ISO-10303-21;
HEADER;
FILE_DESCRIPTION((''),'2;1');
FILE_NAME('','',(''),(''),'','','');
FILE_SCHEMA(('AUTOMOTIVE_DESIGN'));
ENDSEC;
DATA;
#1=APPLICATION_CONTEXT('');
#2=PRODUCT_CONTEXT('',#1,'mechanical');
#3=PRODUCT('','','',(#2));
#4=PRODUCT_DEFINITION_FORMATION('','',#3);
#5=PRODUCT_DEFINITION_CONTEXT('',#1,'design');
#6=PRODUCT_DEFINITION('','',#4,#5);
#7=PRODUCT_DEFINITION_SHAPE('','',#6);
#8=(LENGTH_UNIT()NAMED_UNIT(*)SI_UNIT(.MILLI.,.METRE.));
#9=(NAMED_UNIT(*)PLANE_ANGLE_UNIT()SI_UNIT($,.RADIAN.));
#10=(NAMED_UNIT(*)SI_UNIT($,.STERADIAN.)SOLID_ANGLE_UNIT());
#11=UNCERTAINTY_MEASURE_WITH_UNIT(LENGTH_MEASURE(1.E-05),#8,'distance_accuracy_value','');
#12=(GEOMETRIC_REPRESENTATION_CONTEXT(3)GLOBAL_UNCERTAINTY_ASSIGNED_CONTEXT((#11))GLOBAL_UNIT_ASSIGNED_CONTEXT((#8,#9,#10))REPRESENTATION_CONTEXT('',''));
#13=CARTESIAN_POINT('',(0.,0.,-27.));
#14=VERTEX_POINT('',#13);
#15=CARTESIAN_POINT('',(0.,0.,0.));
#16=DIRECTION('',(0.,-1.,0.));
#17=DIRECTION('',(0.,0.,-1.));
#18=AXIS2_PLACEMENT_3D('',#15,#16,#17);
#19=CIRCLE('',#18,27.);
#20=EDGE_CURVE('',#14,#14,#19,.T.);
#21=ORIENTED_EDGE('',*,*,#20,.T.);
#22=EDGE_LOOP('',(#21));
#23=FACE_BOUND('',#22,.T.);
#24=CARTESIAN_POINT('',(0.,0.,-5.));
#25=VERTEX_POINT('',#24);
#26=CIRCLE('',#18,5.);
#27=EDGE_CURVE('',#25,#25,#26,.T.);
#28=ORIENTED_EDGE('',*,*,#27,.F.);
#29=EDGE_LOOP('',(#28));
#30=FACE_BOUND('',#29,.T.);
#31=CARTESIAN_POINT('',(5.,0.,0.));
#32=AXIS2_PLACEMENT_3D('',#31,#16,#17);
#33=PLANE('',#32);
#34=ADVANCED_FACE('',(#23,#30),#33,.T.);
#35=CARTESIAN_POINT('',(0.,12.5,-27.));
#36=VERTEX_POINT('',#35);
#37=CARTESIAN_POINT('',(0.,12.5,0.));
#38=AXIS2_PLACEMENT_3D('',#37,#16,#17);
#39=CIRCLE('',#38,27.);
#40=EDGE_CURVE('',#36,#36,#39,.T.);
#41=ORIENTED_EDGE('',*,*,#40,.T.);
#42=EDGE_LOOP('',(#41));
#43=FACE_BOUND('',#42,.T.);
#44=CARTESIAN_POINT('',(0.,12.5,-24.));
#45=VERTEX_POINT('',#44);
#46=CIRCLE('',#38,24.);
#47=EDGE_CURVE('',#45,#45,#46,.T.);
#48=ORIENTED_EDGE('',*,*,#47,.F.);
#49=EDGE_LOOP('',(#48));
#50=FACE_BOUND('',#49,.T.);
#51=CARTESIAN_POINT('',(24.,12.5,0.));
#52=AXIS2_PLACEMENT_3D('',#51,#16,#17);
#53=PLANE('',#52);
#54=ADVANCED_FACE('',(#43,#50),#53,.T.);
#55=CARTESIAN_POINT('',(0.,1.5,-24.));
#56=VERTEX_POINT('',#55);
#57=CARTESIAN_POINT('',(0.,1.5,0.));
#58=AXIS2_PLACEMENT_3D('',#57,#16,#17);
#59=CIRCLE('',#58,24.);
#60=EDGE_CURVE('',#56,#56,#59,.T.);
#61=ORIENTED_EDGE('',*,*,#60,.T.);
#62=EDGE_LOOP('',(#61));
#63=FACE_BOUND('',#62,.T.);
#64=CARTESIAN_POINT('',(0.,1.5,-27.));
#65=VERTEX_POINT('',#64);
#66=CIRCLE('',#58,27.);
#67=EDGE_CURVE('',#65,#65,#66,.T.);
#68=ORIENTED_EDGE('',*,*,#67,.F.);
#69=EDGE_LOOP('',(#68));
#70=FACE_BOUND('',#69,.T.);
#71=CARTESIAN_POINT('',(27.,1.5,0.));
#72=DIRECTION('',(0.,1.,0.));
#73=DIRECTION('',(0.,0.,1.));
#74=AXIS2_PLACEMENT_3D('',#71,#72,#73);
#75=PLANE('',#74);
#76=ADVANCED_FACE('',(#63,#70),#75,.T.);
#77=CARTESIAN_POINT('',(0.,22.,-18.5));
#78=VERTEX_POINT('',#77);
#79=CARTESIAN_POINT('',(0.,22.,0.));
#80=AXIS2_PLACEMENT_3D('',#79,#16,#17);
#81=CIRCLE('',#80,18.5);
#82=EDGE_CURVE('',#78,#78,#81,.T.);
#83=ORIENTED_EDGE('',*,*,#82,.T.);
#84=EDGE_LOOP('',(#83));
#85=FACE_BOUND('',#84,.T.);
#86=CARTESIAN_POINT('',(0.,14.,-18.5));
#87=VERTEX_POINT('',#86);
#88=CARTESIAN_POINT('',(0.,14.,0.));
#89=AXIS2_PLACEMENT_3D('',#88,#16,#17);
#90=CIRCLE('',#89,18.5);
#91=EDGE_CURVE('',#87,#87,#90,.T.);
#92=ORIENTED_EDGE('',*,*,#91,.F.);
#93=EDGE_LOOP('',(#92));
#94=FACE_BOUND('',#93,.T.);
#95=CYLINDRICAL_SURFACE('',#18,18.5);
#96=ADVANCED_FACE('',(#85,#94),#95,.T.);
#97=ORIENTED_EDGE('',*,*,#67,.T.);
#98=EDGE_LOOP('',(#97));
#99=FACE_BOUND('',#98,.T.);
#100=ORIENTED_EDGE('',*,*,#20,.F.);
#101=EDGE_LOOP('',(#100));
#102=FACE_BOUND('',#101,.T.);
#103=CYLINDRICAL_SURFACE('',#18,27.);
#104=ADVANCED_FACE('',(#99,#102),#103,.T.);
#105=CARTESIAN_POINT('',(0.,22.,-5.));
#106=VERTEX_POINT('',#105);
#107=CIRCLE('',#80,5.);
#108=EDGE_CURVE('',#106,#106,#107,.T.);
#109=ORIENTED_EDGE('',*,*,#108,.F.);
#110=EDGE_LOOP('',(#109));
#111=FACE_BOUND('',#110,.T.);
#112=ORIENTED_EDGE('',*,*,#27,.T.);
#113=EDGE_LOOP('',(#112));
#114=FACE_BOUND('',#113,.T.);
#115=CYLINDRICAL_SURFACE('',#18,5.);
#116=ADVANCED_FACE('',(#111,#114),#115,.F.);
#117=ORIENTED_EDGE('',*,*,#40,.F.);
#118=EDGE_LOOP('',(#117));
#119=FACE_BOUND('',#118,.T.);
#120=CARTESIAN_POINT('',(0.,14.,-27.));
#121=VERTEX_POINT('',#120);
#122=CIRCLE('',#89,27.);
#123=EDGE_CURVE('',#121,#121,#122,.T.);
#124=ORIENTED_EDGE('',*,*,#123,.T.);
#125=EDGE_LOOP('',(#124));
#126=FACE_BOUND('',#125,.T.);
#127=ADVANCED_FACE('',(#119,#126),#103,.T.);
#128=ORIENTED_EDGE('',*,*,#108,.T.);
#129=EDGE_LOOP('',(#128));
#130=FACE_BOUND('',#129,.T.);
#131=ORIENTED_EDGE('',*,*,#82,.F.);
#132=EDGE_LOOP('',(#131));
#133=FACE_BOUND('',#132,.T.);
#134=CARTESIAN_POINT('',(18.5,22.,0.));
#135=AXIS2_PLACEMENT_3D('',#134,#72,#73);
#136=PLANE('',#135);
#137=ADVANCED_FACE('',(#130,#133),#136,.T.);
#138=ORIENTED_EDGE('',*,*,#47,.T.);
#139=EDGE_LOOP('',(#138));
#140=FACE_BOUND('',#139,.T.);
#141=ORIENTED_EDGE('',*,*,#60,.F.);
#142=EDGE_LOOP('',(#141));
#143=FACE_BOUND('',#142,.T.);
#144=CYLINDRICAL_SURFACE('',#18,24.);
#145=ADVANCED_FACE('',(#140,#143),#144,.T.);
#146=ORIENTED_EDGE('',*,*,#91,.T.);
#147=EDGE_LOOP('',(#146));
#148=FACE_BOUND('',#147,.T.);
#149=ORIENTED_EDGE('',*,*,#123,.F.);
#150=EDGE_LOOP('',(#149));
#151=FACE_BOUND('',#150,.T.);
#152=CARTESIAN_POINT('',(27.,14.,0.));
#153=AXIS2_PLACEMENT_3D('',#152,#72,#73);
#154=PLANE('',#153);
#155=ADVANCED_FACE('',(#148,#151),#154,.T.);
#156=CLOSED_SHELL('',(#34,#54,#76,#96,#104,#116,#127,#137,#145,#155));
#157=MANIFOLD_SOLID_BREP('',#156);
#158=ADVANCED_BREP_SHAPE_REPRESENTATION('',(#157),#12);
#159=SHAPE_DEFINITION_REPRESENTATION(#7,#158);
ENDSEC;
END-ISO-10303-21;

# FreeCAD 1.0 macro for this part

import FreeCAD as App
import Part
import Sketcher
from FreeCAD import Vector
Q = App.Units.Quantity


def add_polygon(sketch, points):
    """Adds a closed chain of lines whose ends are joined by coincident constraints."""
    first, n = sketch.GeometryCount, len(points)
    for a, b in zip(points, points[1:] + points[:1]):
        sketch.addGeometry(Part.LineSegment(App.Vector(*a, 0), App.Vector(*b, 0)), False)
    for i in range(n):
        sketch.addConstraint(Sketcher.Constraint("Coincident", first + i, 2, first + (i + 1) % n, 1))

doc = App.newDocument("Part")
body = doc.addObject("PartDesign::Body", "Body")

sketch1 = doc.addObject("Sketcher::SketchObject", "Sketch")
body.addObject(sketch1)
sketch1.AttachmentSupport = (doc.XY_Plane, [""])
sketch1.MapMode = "FlatFace"
add_polygon(sketch1, [(5, 0), (27, 0), (27, 1.5), (24, 1.5), (24, 12.5), (27, 12.5), (27, 14), (18.5, 14), (18.5, 22), (5, 22)])
sketch1.addConstraint([
    Sketcher.Constraint("Horizontal", 0),
    Sketcher.Constraint("Vertical", 1),
    Sketcher.Constraint("Horizontal", 2),
    Sketcher.Constraint("Vertical", 3),
    Sketcher.Constraint("Horizontal", 4),
    Sketcher.Constraint("Vertical", 5),
    Sketcher.Constraint("Horizontal", 6),
    Sketcher.Constraint("Vertical", 7),
    Sketcher.Constraint("Horizontal", 8),
    Sketcher.Constraint("Vertical", 9),
    Sketcher.Constraint("PointOnObject", 0, 2, -1),
    Sketcher.Constraint("Vertical", 1, 2, 4, 2),
    Sketcher.Constraint("Equal", 1, 5),
    Sketcher.Constraint("Equal", 0, 9),
    Sketcher.Constraint("DistanceX", 0, 1, 0, 2, Q("22 mm")),
    Sketcher.Constraint("DistanceX", 2, 2, 2, 1, Q("3 mm")),
    Sketcher.Constraint("DistanceY", 3, 1, 3, 2, Q("11 mm")),
    Sketcher.Constraint("DistanceY", 7, 1, 7, 2, Q("8 mm")),
    Sketcher.Constraint("DistanceX", 6, 2, 6, 1, Q("8.5 mm")),
    Sketcher.Constraint("DistanceX", -1, 1, 0, 2, Q("27 mm")),
])
revolution = doc.addObject("PartDesign::Revolution", "Revolution")
body.addObject(revolution)
revolution.Profile = sketch1
revolution.ReferenceAxis = (sketch1, ["V_Axis"])
revolution.Angle = 360

doc.recompute()
